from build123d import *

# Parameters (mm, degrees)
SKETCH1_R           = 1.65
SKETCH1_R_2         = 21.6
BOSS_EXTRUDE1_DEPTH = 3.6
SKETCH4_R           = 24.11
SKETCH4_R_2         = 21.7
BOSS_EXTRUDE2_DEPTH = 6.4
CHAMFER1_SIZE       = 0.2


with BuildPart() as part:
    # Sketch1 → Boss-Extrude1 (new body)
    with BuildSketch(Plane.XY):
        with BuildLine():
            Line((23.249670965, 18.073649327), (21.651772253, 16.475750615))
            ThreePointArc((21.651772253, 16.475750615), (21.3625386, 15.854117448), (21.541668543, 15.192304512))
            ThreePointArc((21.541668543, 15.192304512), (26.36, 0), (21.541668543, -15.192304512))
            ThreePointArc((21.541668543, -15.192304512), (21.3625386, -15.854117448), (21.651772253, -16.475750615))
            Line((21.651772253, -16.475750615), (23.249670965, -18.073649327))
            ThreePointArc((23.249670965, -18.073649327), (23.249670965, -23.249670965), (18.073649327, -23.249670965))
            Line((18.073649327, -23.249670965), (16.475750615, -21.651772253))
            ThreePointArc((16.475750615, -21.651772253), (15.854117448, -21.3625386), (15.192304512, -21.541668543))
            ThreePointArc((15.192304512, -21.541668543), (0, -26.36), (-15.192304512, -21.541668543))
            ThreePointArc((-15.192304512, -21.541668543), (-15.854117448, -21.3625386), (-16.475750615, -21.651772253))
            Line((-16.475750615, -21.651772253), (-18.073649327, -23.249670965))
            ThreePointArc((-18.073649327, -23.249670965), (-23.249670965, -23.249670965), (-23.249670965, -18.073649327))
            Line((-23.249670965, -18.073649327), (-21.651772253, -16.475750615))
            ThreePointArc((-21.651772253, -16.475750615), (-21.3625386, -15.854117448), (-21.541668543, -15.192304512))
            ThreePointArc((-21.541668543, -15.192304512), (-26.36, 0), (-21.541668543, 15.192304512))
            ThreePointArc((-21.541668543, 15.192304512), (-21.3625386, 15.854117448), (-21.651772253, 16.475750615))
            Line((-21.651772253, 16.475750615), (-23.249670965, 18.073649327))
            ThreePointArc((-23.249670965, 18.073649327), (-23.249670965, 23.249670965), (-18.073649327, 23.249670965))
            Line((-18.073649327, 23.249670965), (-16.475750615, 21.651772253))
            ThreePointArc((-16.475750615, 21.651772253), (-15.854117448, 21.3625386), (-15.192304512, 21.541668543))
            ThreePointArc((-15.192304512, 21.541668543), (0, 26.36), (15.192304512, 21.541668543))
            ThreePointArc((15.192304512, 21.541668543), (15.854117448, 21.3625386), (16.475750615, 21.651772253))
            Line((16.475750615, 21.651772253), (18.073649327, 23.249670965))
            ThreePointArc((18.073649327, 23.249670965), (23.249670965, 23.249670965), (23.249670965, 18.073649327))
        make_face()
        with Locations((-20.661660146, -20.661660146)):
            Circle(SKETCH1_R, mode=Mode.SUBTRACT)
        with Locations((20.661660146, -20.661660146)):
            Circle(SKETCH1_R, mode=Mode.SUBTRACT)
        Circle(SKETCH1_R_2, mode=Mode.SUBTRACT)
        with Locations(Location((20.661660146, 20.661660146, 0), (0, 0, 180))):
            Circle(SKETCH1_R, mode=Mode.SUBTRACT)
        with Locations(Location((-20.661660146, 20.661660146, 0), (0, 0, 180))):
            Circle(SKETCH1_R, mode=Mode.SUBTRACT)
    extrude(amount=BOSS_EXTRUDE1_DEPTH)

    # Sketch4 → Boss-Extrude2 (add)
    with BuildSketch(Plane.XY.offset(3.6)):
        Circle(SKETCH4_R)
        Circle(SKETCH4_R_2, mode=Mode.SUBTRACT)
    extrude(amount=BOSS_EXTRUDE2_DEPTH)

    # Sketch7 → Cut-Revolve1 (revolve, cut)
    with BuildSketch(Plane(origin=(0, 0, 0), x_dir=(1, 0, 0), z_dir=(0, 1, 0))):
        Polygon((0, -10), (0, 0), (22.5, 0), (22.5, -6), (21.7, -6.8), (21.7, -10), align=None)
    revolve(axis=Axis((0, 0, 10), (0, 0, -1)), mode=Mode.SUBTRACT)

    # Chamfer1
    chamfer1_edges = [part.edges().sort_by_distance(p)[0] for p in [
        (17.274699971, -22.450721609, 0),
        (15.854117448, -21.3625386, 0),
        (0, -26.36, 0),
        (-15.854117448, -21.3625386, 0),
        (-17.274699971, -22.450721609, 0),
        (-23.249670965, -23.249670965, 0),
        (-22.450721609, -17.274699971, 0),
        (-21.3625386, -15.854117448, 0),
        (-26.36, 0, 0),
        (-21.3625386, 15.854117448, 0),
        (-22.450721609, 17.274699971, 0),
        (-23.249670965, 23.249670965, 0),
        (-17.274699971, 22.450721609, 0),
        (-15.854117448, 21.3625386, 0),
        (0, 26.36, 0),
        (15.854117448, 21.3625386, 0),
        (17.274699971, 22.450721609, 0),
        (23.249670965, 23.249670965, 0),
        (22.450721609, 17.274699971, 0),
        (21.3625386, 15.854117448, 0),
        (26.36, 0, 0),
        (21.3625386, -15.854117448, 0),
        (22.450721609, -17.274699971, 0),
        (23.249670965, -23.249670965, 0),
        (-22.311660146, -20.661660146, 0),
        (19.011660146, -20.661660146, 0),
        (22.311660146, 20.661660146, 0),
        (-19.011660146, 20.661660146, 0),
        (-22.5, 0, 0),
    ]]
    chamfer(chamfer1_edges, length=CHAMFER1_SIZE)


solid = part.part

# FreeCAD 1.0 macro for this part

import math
import FreeCAD as App
import Part
import Sketcher
Q = App.Units.Quantity


def edges_at(feature, points):
    """Names of the edges that pass closest to the given points."""
    edges = feature.Shape.Edges
    near = lambda p: min(range(len(edges)), key=lambda i: edges[i].distToShape(Part.Vertex(*p))[0])
    return sorted({f"Edge{near(p) + 1}" for p in points})

doc = App.newDocument("Part")
body = doc.addObject("PartDesign::Body", "Body")

sketch1 = body.newObject("Sketcher::SketchObject", "Sketch")
sketch1.AttachmentSupport = (doc.getObject("XY_Plane"), [""])
sketch1.MapMode = "FlatFace"
sketch1.addGeometry([
    Part.LineSegment(App.Vector(21.7, 16.5, 0), App.Vector(23.2, 18.1, 0)),
    Part.ArcOfCircle(Part.Circle(App.Vector(20.7, 20.7, 0), App.Vector(0, 0, 1), 3.7), math.radians(-45), math.radians(135)),
    Part.LineSegment(App.Vector(18.1, 23.2, 0), App.Vector(16.5, 21.7, 0)),
    Part.ArcOfCircle(Part.Circle(App.Vector(15.8, 22.4, 0), App.Vector(0, 0, 1), 1), math.radians(-125), math.radians(-45)),
    Part.ArcOfCircle(Part.Circle(App.Vector(0, 0, 0), App.Vector(0, 0, 1), 26.4), math.radians(55), math.radians(125)),
    Part.ArcOfCircle(Part.Circle(App.Vector(-15.8, 22.4, 0), App.Vector(0, 0, 1), 1), math.radians(-135), math.radians(-55)),
    Part.LineSegment(App.Vector(-16.5, 21.7, 0), App.Vector(-18.1, 23.2, 0)),
    Part.ArcOfCircle(Part.Circle(App.Vector(-20.7, 20.7, 0), App.Vector(0, 0, 1), 3.7), math.radians(45), math.radians(225)),
    Part.LineSegment(App.Vector(-23.2, 18.1, 0), App.Vector(-21.7, 16.5, 0)),
    Part.ArcOfCircle(Part.Circle(App.Vector(-22.4, 15.8, 0), App.Vector(0, 0, 1), 1), math.radians(-35), math.radians(45)),
    Part.ArcOfCircle(Part.Circle(App.Vector(0, 0, 0), App.Vector(0, 0, 1), 26.4), math.radians(145), math.radians(215)),
    Part.ArcOfCircle(Part.Circle(App.Vector(-22.4, -15.8, 0), App.Vector(0, 0, 1), 1), math.radians(-45), math.radians(35)),
    Part.LineSegment(App.Vector(-21.7, -16.5, 0), App.Vector(-23.2, -18.1, 0)),
    Part.ArcOfCircle(Part.Circle(App.Vector(-20.7, -20.7, 0), App.Vector(0, 0, 1), 3.7), math.radians(135), math.radians(315)),
    Part.LineSegment(App.Vector(-18.1, -23.2, 0), App.Vector(-16.5, -21.7, 0)),
    Part.ArcOfCircle(Part.Circle(App.Vector(-15.8, -22.4, 0), App.Vector(0, 0, 1), 1), math.radians(55), math.radians(135)),
    Part.ArcOfCircle(Part.Circle(App.Vector(0, 0, 0), App.Vector(0, 0, 1), 26.4), math.radians(-125), math.radians(-55)),
    Part.ArcOfCircle(Part.Circle(App.Vector(15.8, -22.4, 0), App.Vector(0, 0, 1), 1), math.radians(45), math.radians(125)),
    Part.LineSegment(App.Vector(16.5, -21.7, 0), App.Vector(18.1, -23.2, 0)),
    Part.ArcOfCircle(Part.Circle(App.Vector(20.7, -20.7, 0), App.Vector(0, 0, 1), 3.7), math.radians(-135), math.radians(45)),
    Part.LineSegment(App.Vector(23.2, -18.1, 0), App.Vector(21.7, -16.5, 0)),
    Part.ArcOfCircle(Part.Circle(App.Vector(22.4, -15.8, 0), App.Vector(0, 0, 1), 1), math.radians(145), math.radians(225)),
    Part.ArcOfCircle(Part.Circle(App.Vector(0, 0, 0), App.Vector(0, 0, 1), 26.4), math.radians(-35), math.radians(35)),
    Part.ArcOfCircle(Part.Circle(App.Vector(22.4, 15.8, 0), App.Vector(0, 0, 1), 1), math.radians(135), math.radians(215)),
    Part.Circle(App.Vector(20.7, -20.7, 0), App.Vector(0, 0, 1), 1.6),
    Part.Circle(App.Vector(-20.7, -20.7, 0), App.Vector(0, 0, 1), 1.6),
    Part.Circle(App.Vector(20.7, 20.7, 0), App.Vector(0, 0, 1), 1.6),
    Part.Circle(App.Vector(0, 0, 0), App.Vector(0, 0, 1), 21.6),
    Part.Circle(App.Vector(-20.7, 20.7, 0), App.Vector(0, 0, 1), 1.6),
], False)
sketch1.addConstraint([
    Sketcher.Constraint("Tangent", 0, 2, 1, 1),
    Sketcher.Constraint("Tangent", 1, 2, 2, 1),
    Sketcher.Constraint("Tangent", 2, 2, 3, 2),
    Sketcher.Constraint("Tangent", 3, 1, 4, 1),
    Sketcher.Constraint("Tangent", 4, 2, 5, 2),
    Sketcher.Constraint("Tangent", 5, 1, 6, 1),
    Sketcher.Constraint("Tangent", 6, 2, 7, 1),
    Sketcher.Constraint("Tangent", 7, 2, 8, 1),
    Sketcher.Constraint("Tangent", 8, 2, 9, 2),
    Sketcher.Constraint("Tangent", 9, 1, 10, 1),
    Sketcher.Constraint("Tangent", 10, 2, 11, 2),
    Sketcher.Constraint("Tangent", 11, 1, 12, 1),
    Sketcher.Constraint("Tangent", 12, 2, 13, 1),
    Sketcher.Constraint("Tangent", 13, 2, 14, 1),
    Sketcher.Constraint("Tangent", 14, 2, 15, 2),
    Sketcher.Constraint("Tangent", 15, 1, 16, 1),
    Sketcher.Constraint("Tangent", 16, 2, 17, 2),
    Sketcher.Constraint("Tangent", 17, 1, 18, 1),
    Sketcher.Constraint("Tangent", 18, 2, 19, 1),
    Sketcher.Constraint("Tangent", 19, 2, 20, 1),
    Sketcher.Constraint("Tangent", 20, 2, 21, 2),
    Sketcher.Constraint("Tangent", 21, 1, 22, 1),
    Sketcher.Constraint("Tangent", 22, 2, 23, 2),
    Sketcher.Constraint("Tangent", 23, 1, 0, 1),
    Sketcher.Constraint("Coincident", 4, 3, -1, 1),
    Sketcher.Constraint("Coincident", 10, 3, -1, 1),
    Sketcher.Constraint("Coincident", 16, 3, -1, 1),
    Sketcher.Constraint("Coincident", 22, 3, -1, 1),
    Sketcher.Constraint("Coincident", 27, 3, -1, 1),
    Sketcher.Constraint("Coincident", 24, 3, 19, 3),
    Sketcher.Constraint("Coincident", 25, 3, 13, 3),
    Sketcher.Constraint("Coincident", 26, 3, 1, 3),
    Sketcher.Constraint("Coincident", 28, 3, 7, 3),
    Sketcher.Constraint("Equal", 3, 5),
    Sketcher.Constraint("Equal", 1, 7),
    Sketcher.Constraint("Equal", 5, 9),
    Sketcher.Constraint("Equal", 4, 10),
    Sketcher.Constraint("Equal", 9, 11),
    Sketcher.Constraint("Equal", 7, 13),
    Sketcher.Constraint("Equal", 11, 15),
    Sketcher.Constraint("Equal", 10, 16),
    Sketcher.Constraint("Equal", 15, 17),
    Sketcher.Constraint("Equal", 13, 19),
    Sketcher.Constraint("Equal", 17, 21),
    Sketcher.Constraint("Equal", 16, 22),
    Sketcher.Constraint("Equal", 21, 23),
    Sketcher.Constraint("Equal", 24, 25),
    Sketcher.Constraint("Equal", 25, 26),
    Sketcher.Constraint("Equal", 26, 28),
    Sketcher.Constraint("Symmetric", 1, 3, 13, 3, -1, 1),
    Sketcher.Constraint("Symmetric", 7, 3, 19, 3, -1, 1),
    Sketcher.Constraint("Symmetric", 1, 3, 7, 3, -2),
    Sketcher.Constraint("Parallel", 0, 2),
    Sketcher.Constraint("Perpendicular", 2, 6),
    Sketcher.Constraint("Parallel", 6, 8),
    Sketcher.Constraint("Perpendicular", 8, 12),
    Sketcher.Constraint("Parallel", 12, 14),
    Sketcher.Constraint("Perpendicular", 14, 18),
    Sketcher.Constraint("Parallel", 18, 20),
    Sketcher.Constraint("Horizontal", 3, 3, 5, 3),
    Sketcher.Constraint("Equal", 0, 2),
    Sketcher.Constraint("Radius", 3, Q("1 mm")),
    Sketcher.Constraint("Diameter", 24, Q("3.3 mm")),
    Sketcher.Constraint("Diameter", 27, Q("43.2 mm")),
    Sketcher.Constraint("Radius", 1, Q("3.66 mm")),
    Sketcher.Constraint("Radius", 4, Q("26.36 mm")),
    Sketcher.Constraint("DistanceX", 2, 2, 1, 2, Q("1.597899 mm")),
])
pad1 = body.newObject("PartDesign::Pad", "Pad")
pad1.Profile = sketch1
pad1.Length = 3.6

sketch2 = body.newObject("Sketcher::SketchObject", "Sketch001")
sketch2.AttachmentSupport = (doc.getObject("XY_Plane"), [""])
sketch2.MapMode = "FlatFace"
sketch2.AttachmentOffset = App.Placement(App.Vector(0, 0, 3.6), App.Rotation())
sketch2.addGeometry([
    Part.Circle(App.Vector(0, 0, 0), App.Vector(0, 0, 1), 24),
    Part.Circle(App.Vector(0, 0, 0), App.Vector(0, 0, 1), 22),
], False)
sketch2.addConstraint([
    Sketcher.Constraint("Coincident", 0, 3, -1, 1),
    Sketcher.Constraint("Coincident", 1, 3, -1, 1),
    Sketcher.Constraint("Diameter", 1, Q("43.4 mm")),
    Sketcher.Constraint("Diameter", 0, Q("48.22 mm")),
])
pad2 = body.newObject("PartDesign::Pad", "Pad001")
pad2.Profile = sketch2
pad2.Length = 6.4

sketch3 = body.newObject("Sketcher::SketchObject", "Sketch002")
sketch3.AttachmentSupport = (doc.getObject("XZ_Plane"), [""])
sketch3.MapMode = "FlatFace"
sketch3.addGeometry([
    Part.LineSegment(App.Vector(0, 0, 0), App.Vector(0, 10, 0)),
    Part.LineSegment(App.Vector(0, 10, 0), App.Vector(21.7, 10, 0)),
    Part.LineSegment(App.Vector(21.7, 10, 0), App.Vector(21.7, 6.8, 0)),
    Part.LineSegment(App.Vector(21.7, 6.8, 0), App.Vector(22.5, 6, 0)),
    Part.LineSegment(App.Vector(22.5, 6, 0), App.Vector(22.5, 0, 0)),
    Part.LineSegment(App.Vector(22.5, 0, 0), App.Vector(0, 0, 0)),
], False)
sketch3.addConstraint([
    Sketcher.Constraint("Coincident", 0, 2, 1, 1),
    Sketcher.Constraint("Coincident", 1, 2, 2, 1),
    Sketcher.Constraint("Coincident", 2, 2, 3, 1),
    Sketcher.Constraint("Coincident", 3, 2, 4, 1),
    Sketcher.Constraint("Coincident", 4, 2, 5, 1),
    Sketcher.Constraint("Coincident", 5, 2, 0, 1),
    Sketcher.Constraint("Vertical", 0),
    Sketcher.Constraint("Horizontal", 1),
    Sketcher.Constraint("Vertical", 2),
    Sketcher.Constraint("Vertical", 4),
    Sketcher.Constraint("Horizontal", 5),
    Sketcher.Constraint("Coincident", 5, 2, -1, 1),
    Sketcher.Constraint("DistanceY", 0, 1, 0, 2, Q("10 mm")),
    Sketcher.Constraint("DistanceY", 4, 2, 4, 1, Q("6 mm")),
    Sketcher.Constraint("Angle", 3, Q("-45 deg")),
    Sketcher.Constraint("DistanceX", 1, 1, 1, 2, Q("21.7 mm")),
    Sketcher.Constraint("DistanceX", 5, 2, 5, 1, Q("22.5 mm")),
])
groove = body.newObject("PartDesign::Groove", "Groove")
groove.Profile = sketch3
groove.ReferenceAxis = (sketch3, ["V_Axis"])
groove.Angle = 360
doc.recompute()

chamfer = body.newObject("PartDesign::Chamfer", "Chamfer")
chamfer.Base = (groove, edges_at(groove, [
    (17.275, -22.451, 0),
    (15.854, -21.363, 0),
    (0, -26.36, 0),
    (-15.854, -21.363, 0),
    (-17.275, -22.451, 0),
    (-23.25, -23.25, 0),
    (-22.451, -17.275, 0),
    (-21.363, -15.854, 0),
    (-26.36, 0, 0),
    (-21.363, 15.854, 0),
    (-22.451, 17.275, 0),
    (-23.25, 23.25, 0),
    (-17.275, 22.451, 0),
    (-15.854, 21.363, 0),
    (0, 26.36, 0),
    (15.854, 21.363, 0),
    (17.275, 22.451, 0),
    (23.25, 23.25, 0),
    (22.451, 17.275, 0),
    (21.363, 15.854, 0),
    (26.36, 0, 0),
    (21.363, -15.854, 0),
    (22.451, -17.275, 0),
    (23.25, -23.25, 0),
    (-22.312, -20.662, 0),
    (19.012, -20.662, 0),
    (22.312, 20.662, 0),
    (-19.012, 20.662, 0),
    (-22.5, 0, 0),
]))
chamfer.Size = 0.2

doc.recompute()
